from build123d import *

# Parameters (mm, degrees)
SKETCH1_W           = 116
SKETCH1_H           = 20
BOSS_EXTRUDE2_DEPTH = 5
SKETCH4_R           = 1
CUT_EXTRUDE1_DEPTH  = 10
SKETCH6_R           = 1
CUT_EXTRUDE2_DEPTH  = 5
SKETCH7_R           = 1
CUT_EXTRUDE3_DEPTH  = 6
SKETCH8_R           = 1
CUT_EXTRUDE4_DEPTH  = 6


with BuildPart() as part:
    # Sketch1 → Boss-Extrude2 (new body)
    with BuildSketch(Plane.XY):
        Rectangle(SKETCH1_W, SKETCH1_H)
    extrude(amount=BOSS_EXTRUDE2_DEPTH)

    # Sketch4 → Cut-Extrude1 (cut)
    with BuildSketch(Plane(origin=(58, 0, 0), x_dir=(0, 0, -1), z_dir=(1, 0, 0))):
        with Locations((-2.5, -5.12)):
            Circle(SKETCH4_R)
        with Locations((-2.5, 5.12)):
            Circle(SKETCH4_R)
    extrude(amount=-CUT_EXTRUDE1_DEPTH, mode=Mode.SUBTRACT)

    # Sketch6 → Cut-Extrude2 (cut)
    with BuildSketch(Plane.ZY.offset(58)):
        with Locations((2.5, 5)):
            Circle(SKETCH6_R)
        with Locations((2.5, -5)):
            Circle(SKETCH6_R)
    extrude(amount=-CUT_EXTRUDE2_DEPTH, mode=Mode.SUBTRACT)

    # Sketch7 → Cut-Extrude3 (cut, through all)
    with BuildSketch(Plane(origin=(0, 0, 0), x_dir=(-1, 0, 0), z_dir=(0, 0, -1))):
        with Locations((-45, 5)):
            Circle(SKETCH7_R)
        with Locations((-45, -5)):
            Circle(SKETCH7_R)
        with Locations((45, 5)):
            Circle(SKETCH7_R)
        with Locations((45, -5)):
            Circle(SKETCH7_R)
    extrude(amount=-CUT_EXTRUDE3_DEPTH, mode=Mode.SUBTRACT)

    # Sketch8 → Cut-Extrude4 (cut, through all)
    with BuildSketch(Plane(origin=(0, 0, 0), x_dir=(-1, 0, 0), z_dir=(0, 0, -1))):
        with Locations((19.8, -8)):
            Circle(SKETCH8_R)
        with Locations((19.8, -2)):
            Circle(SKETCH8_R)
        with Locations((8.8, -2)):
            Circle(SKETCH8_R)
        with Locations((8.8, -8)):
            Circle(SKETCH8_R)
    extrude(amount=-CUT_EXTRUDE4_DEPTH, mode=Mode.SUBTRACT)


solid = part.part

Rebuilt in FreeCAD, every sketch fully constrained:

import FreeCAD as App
import Part
import Sketcher

doc = App.newDocument("Part")
body = doc.addObject("PartDesign::Body", "Body")

sketch1 = body.newObject("Sketcher::SketchObject", "Sketch")
sketch1.AttachmentSupport = (doc.getObject("XY_Plane"), [""])
sketch1.MapMode = "FlatFace"
sketch1.addGeometry([
    Part.LineSegment(App.Vector(-58, 10, 0), App.Vector(-58, -10, 0)),
    Part.LineSegment(App.Vector(-58, -10, 0), App.Vector(58, -10, 0)),
    Part.LineSegment(App.Vector(58, -10, 0), App.Vector(58, 10, 0)),
    Part.LineSegment(App.Vector(58, 10, 0), App.Vector(-58, 10, 0)),
], False)
sketch1.addConstraint([
    Sketcher.Constraint("Coincident", 0, 2, 1, 1),
    Sketcher.Constraint("Coincident", 1, 2, 2, 1),
    Sketcher.Constraint("Coincident", 2, 2, 3, 1),
    Sketcher.Constraint("Coincident", 3, 2, 0, 1),
    Sketcher.Constraint("Vertical", 0),
    Sketcher.Constraint("Horizontal", 1),
    Sketcher.Constraint("Vertical", 2),
    Sketcher.Constraint("Horizontal", 3),
    Sketcher.Constraint("Symmetric", 0, 2, 2, 2, -1, 1),
    Sketcher.Constraint("DistanceX", 1, 1, 1, 2, 116.0),
    Sketcher.Constraint("DistanceY", 0, 2, 0, 1, 20.0),
])
pad1 = body.newObject("PartDesign::Pad", "Pad")
pad1.Profile = sketch1
pad1.Length = 5

sketch2 = body.newObject("Sketcher::SketchObject", "Sketch001")
sketch2.AttachmentSupport = (doc.getObject("YZ_Plane"), [""])
sketch2.MapMode = "FlatFace"
sketch2.AttachmentOffset = App.Placement(App.Vector(0, 0, 58), App.Rotation())
sketch2.addGeometry([
    Part.Circle(App.Vector(-5.12, 2.5, 0), App.Vector(0, 0, 1), 1),
    Part.Circle(App.Vector(5.12, 2.5, 0), App.Vector(0, 0, 1), 1),
], False)
sketch2.addConstraint([
    Sketcher.Constraint("Equal", 0, 1),
    Sketcher.Constraint("Symmetric", 0, 3, 1, 3, -2),
    Sketcher.Constraint("Diameter", 0, 2.0),
    Sketcher.Constraint("DistanceY", -1, 1, 0, 3, 2.5),
    Sketcher.Constraint("DistanceX", 0, 3, -1, 1, 5.12),
])
pocket1 = body.newObject("PartDesign::Pocket", "Pocket")
pocket1.Profile = sketch2
pocket1.Length = 10

sketch3 = body.newObject("Sketcher::SketchObject", "Sketch002")
sketch3.AttachmentSupport = (doc.getObject("YZ_Plane"), [""])
sketch3.MapMode = "FlatFace"
sketch3.AttachmentOffset = App.Placement(App.Vector(0, 0, -58), App.Rotation())
sketch3.addGeometry([
    Part.Circle(App.Vector(5, 2.5, 0), App.Vector(0, 0, 1), 1),
    Part.Circle(App.Vector(-5, 2.5, 0), App.Vector(0, 0, 1), 1),
], False)
sketch3.addConstraint([
    Sketcher.Constraint("Equal", 0, 1),
    Sketcher.Constraint("Symmetric", 0, 3, 1, 3, -2),
    Sketcher.Constraint("Diameter", 0, 2.0),
    Sketcher.Constraint("DistanceX", -1, 1, 0, 3, 5.0),
    Sketcher.Constraint("DistanceY", -1, 1, 0, 3, 2.5),
])
pocket2 = body.newObject("PartDesign::Pocket", "Pocket001")
pocket2.Profile = sketch3
pocket2.Length = 5
pocket2.Reversed = True

sketch4 = body.newObject("Sketcher::SketchObject", "Sketch003")
sketch4.AttachmentSupport = (doc.getObject("XY_Plane"), [""])
sketch4.MapMode = "FlatFace"
sketch4.addGeometry([
    Part.Circle(App.Vector(45, 5, 0), App.Vector(0, 0, 1), 1),
    Part.Circle(App.Vector(45, -5, 0), App.Vector(0, 0, 1), 1),
    Part.Circle(App.Vector(-45, 5, 0), App.Vector(0, 0, 1), 1),
    Part.Circle(App.Vector(-45, -5, 0), App.Vector(0, 0, 1), 1),
], False)
sketch4.addConstraint([
    Sketcher.Constraint("Equal", 0, 1),
    Sketcher.Constraint("Equal", 1, 2),
    Sketcher.Constraint("Equal", 2, 3),
    Sketcher.Constraint("Symmetric", 1, 3, 2, 3, -1, 1),
    Sketcher.Constraint("Symmetric", 0, 3, 3, 3, -1, 1),
    Sketcher.Constraint("Symmetric", 0, 3, 2, 3, -2),
    Sketcher.Constraint("Diameter", 0, 2.0),
    Sketcher.Constraint("DistanceX", -1, 1, 0, 3, 45.0),
    Sketcher.Constraint("DistanceY", -1, 1, 0, 3, 5.0),
])
pocket3 = body.newObject("PartDesign::Pocket", "Pocket002")
pocket3.Profile = sketch4
pocket3.Type = "ThroughAll"
pocket3.Reversed = True

sketch5 = body.newObject("Sketcher::SketchObject", "Sketch004")
sketch5.AttachmentSupport = (doc.getObject("XY_Plane"), [""])
sketch5.MapMode = "FlatFace"
sketch5.addGeometry([
    Part.Circle(App.Vector(-19.8, -8, 0), App.Vector(0, 0, 1), 1),
    Part.Circle(App.Vector(-19.8, -2, 0), App.Vector(0, 0, 1), 1),
    Part.Circle(App.Vector(-8.8, -2, 0), App.Vector(0, 0, 1), 1),
    Part.Circle(App.Vector(-8.8, -8, 0), App.Vector(0, 0, 1), 1),
], False)
sketch5.addConstraint([
    Sketcher.Constraint("Equal", 0, 1),
    Sketcher.Constraint("Equal", 1, 2),
    Sketcher.Constraint("Equal", 2, 3),
    Sketcher.Constraint("Horizontal", 1, 3, 2, 3),
    Sketcher.Constraint("Horizontal", 0, 3, 3, 3),
    Sketcher.Constraint("Vertical", 0, 3, 1, 3),
    Sketcher.Constraint("Vertical", 2, 3, 3, 3),
    Sketcher.Constraint("Diameter", 0, 2.0),
    Sketcher.Constraint("DistanceY", 0, 3, -1, 1, 8.0),
    Sketcher.Constraint("DistanceY", 1, 3, -1, 1, 2.0),
    Sketcher.Constraint("DistanceX", 1, 3, 2, 3, 11.0),
    Sketcher.Constraint("DistanceX", 0, 3, -1, 1, 19.8),
])
pocket4 = body.newObject("PartDesign::Pocket", "Pocket003")
pocket4.Profile = sketch5
pocket4.Type = "ThroughAll"
pocket4.Reversed = True

doc.recompute()
